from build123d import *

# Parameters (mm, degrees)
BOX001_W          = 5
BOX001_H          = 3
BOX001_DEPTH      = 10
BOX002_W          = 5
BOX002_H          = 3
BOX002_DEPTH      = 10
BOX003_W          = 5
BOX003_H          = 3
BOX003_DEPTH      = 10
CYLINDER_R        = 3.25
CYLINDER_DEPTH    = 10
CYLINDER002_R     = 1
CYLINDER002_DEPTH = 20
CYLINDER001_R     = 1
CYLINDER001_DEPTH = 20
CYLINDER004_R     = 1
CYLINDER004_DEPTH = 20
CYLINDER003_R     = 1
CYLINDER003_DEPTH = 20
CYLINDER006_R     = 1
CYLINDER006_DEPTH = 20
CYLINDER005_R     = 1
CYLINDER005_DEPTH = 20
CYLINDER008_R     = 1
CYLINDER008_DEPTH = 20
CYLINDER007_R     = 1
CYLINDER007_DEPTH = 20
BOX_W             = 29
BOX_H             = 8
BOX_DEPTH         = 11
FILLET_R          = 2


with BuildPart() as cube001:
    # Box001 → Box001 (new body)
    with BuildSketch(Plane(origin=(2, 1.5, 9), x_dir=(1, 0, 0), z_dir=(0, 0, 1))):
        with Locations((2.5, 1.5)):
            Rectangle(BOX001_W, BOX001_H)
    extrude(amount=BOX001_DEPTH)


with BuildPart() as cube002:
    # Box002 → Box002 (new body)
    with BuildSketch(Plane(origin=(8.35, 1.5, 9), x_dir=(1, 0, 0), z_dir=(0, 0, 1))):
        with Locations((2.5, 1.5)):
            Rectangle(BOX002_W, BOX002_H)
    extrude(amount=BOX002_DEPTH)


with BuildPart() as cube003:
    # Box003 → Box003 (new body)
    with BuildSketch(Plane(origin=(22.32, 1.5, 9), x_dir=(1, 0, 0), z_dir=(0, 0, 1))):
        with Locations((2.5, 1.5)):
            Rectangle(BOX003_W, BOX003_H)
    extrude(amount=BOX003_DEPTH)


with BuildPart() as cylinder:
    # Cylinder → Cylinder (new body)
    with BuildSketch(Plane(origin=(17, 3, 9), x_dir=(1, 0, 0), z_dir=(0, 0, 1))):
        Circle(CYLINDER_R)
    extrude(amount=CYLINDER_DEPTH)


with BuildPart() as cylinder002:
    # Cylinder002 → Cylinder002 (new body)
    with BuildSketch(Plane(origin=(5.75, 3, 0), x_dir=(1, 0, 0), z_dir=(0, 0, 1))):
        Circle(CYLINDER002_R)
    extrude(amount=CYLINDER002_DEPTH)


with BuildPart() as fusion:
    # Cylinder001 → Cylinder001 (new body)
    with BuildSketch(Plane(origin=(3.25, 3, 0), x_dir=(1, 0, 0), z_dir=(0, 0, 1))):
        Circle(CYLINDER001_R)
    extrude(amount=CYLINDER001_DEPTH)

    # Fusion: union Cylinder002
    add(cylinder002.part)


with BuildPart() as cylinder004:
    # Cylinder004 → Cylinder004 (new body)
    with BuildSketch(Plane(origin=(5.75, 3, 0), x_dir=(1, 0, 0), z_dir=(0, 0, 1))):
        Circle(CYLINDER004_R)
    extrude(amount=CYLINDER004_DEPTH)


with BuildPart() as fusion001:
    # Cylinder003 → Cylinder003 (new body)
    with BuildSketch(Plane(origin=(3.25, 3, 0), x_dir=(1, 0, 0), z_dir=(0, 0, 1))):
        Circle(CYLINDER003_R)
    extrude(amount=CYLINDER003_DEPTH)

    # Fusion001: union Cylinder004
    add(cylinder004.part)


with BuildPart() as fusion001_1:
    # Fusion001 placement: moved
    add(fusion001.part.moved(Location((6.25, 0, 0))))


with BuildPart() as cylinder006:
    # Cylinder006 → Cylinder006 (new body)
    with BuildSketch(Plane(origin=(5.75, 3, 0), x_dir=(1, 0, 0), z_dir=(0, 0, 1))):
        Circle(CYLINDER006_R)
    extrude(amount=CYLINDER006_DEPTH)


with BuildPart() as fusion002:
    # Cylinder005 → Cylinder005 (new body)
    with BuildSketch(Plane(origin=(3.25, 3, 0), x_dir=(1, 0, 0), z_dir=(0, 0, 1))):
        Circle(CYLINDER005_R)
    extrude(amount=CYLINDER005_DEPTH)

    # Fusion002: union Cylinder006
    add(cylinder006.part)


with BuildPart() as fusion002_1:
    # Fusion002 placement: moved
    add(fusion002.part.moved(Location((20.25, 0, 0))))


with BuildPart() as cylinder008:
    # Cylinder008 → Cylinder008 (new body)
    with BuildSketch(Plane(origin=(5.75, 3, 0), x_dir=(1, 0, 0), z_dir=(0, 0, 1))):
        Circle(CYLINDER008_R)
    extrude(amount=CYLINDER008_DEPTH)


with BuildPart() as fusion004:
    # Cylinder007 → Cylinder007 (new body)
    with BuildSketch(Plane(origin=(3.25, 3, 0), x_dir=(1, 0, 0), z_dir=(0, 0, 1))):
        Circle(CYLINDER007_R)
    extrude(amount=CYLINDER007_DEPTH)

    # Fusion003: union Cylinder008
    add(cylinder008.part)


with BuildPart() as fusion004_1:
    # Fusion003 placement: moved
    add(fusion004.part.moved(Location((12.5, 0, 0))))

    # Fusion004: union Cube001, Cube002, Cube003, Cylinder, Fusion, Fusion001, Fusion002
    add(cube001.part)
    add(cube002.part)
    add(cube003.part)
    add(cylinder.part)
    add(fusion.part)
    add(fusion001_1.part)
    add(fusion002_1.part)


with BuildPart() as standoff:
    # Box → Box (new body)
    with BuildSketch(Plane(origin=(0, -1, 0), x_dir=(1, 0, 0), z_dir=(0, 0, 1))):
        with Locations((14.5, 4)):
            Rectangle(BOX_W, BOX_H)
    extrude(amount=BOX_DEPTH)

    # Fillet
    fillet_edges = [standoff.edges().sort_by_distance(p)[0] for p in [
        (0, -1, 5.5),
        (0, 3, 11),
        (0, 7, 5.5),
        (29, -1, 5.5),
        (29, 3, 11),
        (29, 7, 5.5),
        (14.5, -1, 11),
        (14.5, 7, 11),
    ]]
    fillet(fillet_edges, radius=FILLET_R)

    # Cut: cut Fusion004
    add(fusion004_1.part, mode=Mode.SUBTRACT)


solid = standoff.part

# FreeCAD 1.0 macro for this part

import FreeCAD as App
import Part
import Sketcher
Q = App.Units.Quantity


def edges_at(feature, points):
    """Names of the edges that pass closest to the given points."""
    edges = feature.Shape.Edges
    near = lambda p: min(range(len(edges)), key=lambda i: edges[i].distToShape(Part.Vertex(*p))[0])
    return sorted({f"Edge{near(p) + 1}" for p in points})


def add_polygon(sketch, points):
    """Adds a closed chain of lines whose ends are joined by coincident constraints."""
    first, n = sketch.GeometryCount, len(points)
    for a, b in zip(points, points[1:] + points[:1]):
        sketch.addGeometry(Part.LineSegment(App.Vector(*a, 0), App.Vector(*b, 0)), False)
    for i in range(n):
        sketch.addConstraint(Sketcher.Constraint("Coincident", first + i, 2, first + (i + 1) % n, 1))

doc = App.newDocument("Part")
body = doc.addObject("PartDesign::Body", "Body")

sketch1 = doc.addObject("Sketcher::SketchObject", "Sketch")
body.addObject(sketch1)
sketch1.AttachmentSupport = (doc.XY_Plane, [""])
sketch1.MapMode = "FlatFace"
sketch1.AttachmentOffset = App.Placement(App.Vector(0, 0, 9), App.Rotation())
add_polygon(sketch1, [(2, 4.5), (2, 1.5), (7, 1.5), (7, 4.5)])
sketch1.addConstraint([
    Sketcher.Constraint("Vertical", 0),
    Sketcher.Constraint("Horizontal", 1),
    Sketcher.Constraint("Vertical", 2),
    Sketcher.Constraint("Horizontal", 3),
    Sketcher.Constraint("DistanceX", 1, 1, 1, 2, Q("5 mm")),
    Sketcher.Constraint("DistanceY", 0, 2, 0, 1, Q("3 mm")),
    Sketcher.Constraint("DistanceX", -1, 1, 0, 2, Q("2 mm")),
    Sketcher.Constraint("DistanceY", -1, 1, 0, 2, Q("1.5 mm")),
])
pad1 = doc.addObject("PartDesign::Pad", "Pad")
body.addObject(pad1)
pad1.Profile = sketch1
pad1.Length = 10
body2 = doc.addObject("PartDesign::Body", "Body001")

sketch2 = doc.addObject("Sketcher::SketchObject", "Sketch001")
body2.addObject(sketch2)
sketch2.AttachmentSupport = (doc.getObject("XY_Plane001"), [""])
sketch2.MapMode = "FlatFace"
sketch2.AttachmentOffset = App.Placement(App.Vector(0, 0, 9), App.Rotation())
add_polygon(sketch2, [(8.3, 4.5), (8.3, 1.5), (13.3, 1.5), (13.3, 4.5)])
sketch2.addConstraint([
    Sketcher.Constraint("Vertical", 0),
    Sketcher.Constraint("Horizontal", 1),
    Sketcher.Constraint("Vertical", 2),
    Sketcher.Constraint("Horizontal", 3),
    Sketcher.Constraint("DistanceX", 1, 1, 1, 2, Q("5 mm")),
    Sketcher.Constraint("DistanceY", 0, 2, 0, 1, Q("3 mm")),
    Sketcher.Constraint("DistanceY", -1, 1, 0, 2, Q("1.5 mm")),
    Sketcher.Constraint("DistanceX", -1, 1, 0, 2, Q("8.35 mm")),
])
pad2 = doc.addObject("PartDesign::Pad", "Pad001")
body2.addObject(pad2)
pad2.Profile = sketch2
pad2.Length = 10
body3 = doc.addObject("PartDesign::Body", "Body002")

sketch3 = doc.addObject("Sketcher::SketchObject", "Sketch002")
body3.addObject(sketch3)
sketch3.AttachmentSupport = (doc.getObject("XY_Plane002"), [""])
sketch3.MapMode = "FlatFace"
sketch3.AttachmentOffset = App.Placement(App.Vector(0, 0, 9), App.Rotation())
add_polygon(sketch3, [(22.3, 4.5), (22.3, 1.5), (27.3, 1.5), (27.3, 4.5)])
sketch3.addConstraint([
    Sketcher.Constraint("Vertical", 0),
    Sketcher.Constraint("Horizontal", 1),
    Sketcher.Constraint("Vertical", 2),
    Sketcher.Constraint("Horizontal", 3),
    Sketcher.Constraint("DistanceX", 1, 1, 1, 2, Q("5 mm")),
    Sketcher.Constraint("DistanceY", 0, 2, 0, 1, Q("3 mm")),
    Sketcher.Constraint("DistanceY", -1, 1, 0, 2, Q("1.5 mm")),
    Sketcher.Constraint("DistanceX", -1, 1, 0, 2, Q("22.32 mm")),
])
pad3 = doc.addObject("PartDesign::Pad", "Pad002")
body3.addObject(pad3)
pad3.Profile = sketch3
pad3.Length = 10
body4 = doc.addObject("PartDesign::Body", "Body003")

sketch4 = doc.addObject("Sketcher::SketchObject", "Sketch003")
body4.addObject(sketch4)
sketch4.AttachmentSupport = (doc.getObject("XY_Plane003"), [""])
sketch4.MapMode = "FlatFace"
sketch4.AttachmentOffset = App.Placement(App.Vector(0, 0, 9), App.Rotation())
sketch4.addGeometry(Part.Circle(App.Vector(17, 3, 0), App.Vector(0, 0, 1), 3.2), False)
sketch4.addConstraint([
    Sketcher.Constraint("Diameter", 0, Q("6.5 mm")),
    Sketcher.Constraint("DistanceX", -1, 1, 0, 3, Q("17 mm")),
    Sketcher.Constraint("DistanceY", -1, 1, 0, 3, Q("3 mm")),
])
pad4 = doc.addObject("PartDesign::Pad", "Pad003")
body4.addObject(pad4)
pad4.Profile = sketch4
pad4.Length = 10
body5 = doc.addObject("PartDesign::Body", "Body004")

sketch5 = doc.addObject("Sketcher::SketchObject", "Sketch004")
body5.addObject(sketch5)
sketch5.AttachmentSupport = (doc.getObject("XY_Plane004"), [""])
sketch5.MapMode = "FlatFace"
sketch5.addGeometry(Part.Circle(App.Vector(5.8, 3, 0), App.Vector(0, 0, 1), 1), False)
sketch5.addConstraint([
    Sketcher.Constraint("Diameter", 0, Q("2 mm")),
    Sketcher.Constraint("DistanceY", -1, 1, 0, 3, Q("3 mm")),
    Sketcher.Constraint("DistanceX", -1, 1, 0, 3, Q("5.75 mm")),
])
pad5 = doc.addObject("PartDesign::Pad", "Pad004")
body5.addObject(pad5)
pad5.Profile = sketch5
pad5.Length = 20
body6 = doc.addObject("PartDesign::Body", "Body005")
body6.AllowCompound = True

sketch6 = doc.addObject("Sketcher::SketchObject", "Sketch005")
body6.addObject(sketch6)
sketch6.AttachmentSupport = (doc.getObject("XY_Plane005"), [""])
sketch6.MapMode = "FlatFace"
sketch6.addGeometry(Part.Circle(App.Vector(3.2, 3, 0), App.Vector(0, 0, 1), 1), False)
sketch6.addConstraint([
    Sketcher.Constraint("Diameter", 0, Q("2 mm")),
    Sketcher.Constraint("DistanceY", -1, 1, 0, 3, Q("3 mm")),
    Sketcher.Constraint("DistanceX", -1, 1, 0, 3, Q("3.25 mm")),
])
pad6 = doc.addObject("PartDesign::Pad", "Pad005")
body6.addObject(pad6)
pad6.Profile = sketch6
pad6.Length = 20
doc.recompute()

boolean = doc.addObject("PartDesign::Boolean", "Boolean")
body6.addObject(boolean)
boolean.Type = "Fuse"
boolean.addObjects([body5])
body7 = doc.addObject("PartDesign::Body", "Body006")

sketch7 = doc.addObject("Sketcher::SketchObject", "Sketch006")
body7.addObject(sketch7)
sketch7.AttachmentSupport = (doc.getObject("XY_Plane006"), [""])
sketch7.MapMode = "FlatFace"
sketch7.addGeometry(Part.Circle(App.Vector(5.8, 3, 0), App.Vector(0, 0, 1), 1), False)
sketch7.addConstraint([
    Sketcher.Constraint("Diameter", 0, Q("2 mm")),
    Sketcher.Constraint("DistanceY", -1, 1, 0, 3, Q("3 mm")),
    Sketcher.Constraint("DistanceX", -1, 1, 0, 3, Q("5.75 mm")),
])
pad7 = doc.addObject("PartDesign::Pad", "Pad006")
body7.addObject(pad7)
pad7.Profile = sketch7
pad7.Length = 20
body8 = doc.addObject("PartDesign::Body", "Body007")
body8.AllowCompound = True

sketch8 = doc.addObject("Sketcher::SketchObject", "Sketch007")
body8.addObject(sketch8)
sketch8.AttachmentSupport = (doc.getObject("XY_Plane007"), [""])
sketch8.MapMode = "FlatFace"
sketch8.addGeometry(Part.Circle(App.Vector(3.2, 3, 0), App.Vector(0, 0, 1), 1), False)
sketch8.addConstraint([
    Sketcher.Constraint("Diameter", 0, Q("2 mm")),
    Sketcher.Constraint("DistanceY", -1, 1, 0, 3, Q("3 mm")),
    Sketcher.Constraint("DistanceX", -1, 1, 0, 3, Q("3.25 mm")),
])
pad8 = doc.addObject("PartDesign::Pad", "Pad007")
body8.addObject(pad8)
pad8.Profile = sketch8
pad8.Length = 20
doc.recompute()

boolean2 = doc.addObject("PartDesign::Boolean", "Boolean001")
body8.addObject(boolean2)
boolean2.Type = "Fuse"
boolean2.addObjects([body7])
body9 = doc.addObject("PartDesign::Body", "Body008")
body9.AllowCompound = True
doc.recompute()

body8.Placement = App.Placement(App.Vector(6.25, 0, 0), App.Rotation(App.Vector(0, 0, 1), 0))
boolean3 = doc.addObject("PartDesign::Boolean", "Boolean002")
body9.addObject(boolean3)
boolean3.Type = "Fuse"
boolean3.addObjects([body8])
body10 = doc.addObject("PartDesign::Body", "Body009")

sketch9 = doc.addObject("Sketcher::SketchObject", "Sketch008")
body10.addObject(sketch9)
sketch9.AttachmentSupport = (doc.getObject("XY_Plane009"), [""])
sketch9.MapMode = "FlatFace"
sketch9.addGeometry(Part.Circle(App.Vector(5.8, 3, 0), App.Vector(0, 0, 1), 1), False)
sketch9.addConstraint([
    Sketcher.Constraint("Diameter", 0, Q("2 mm")),
    Sketcher.Constraint("DistanceY", -1, 1, 0, 3, Q("3 mm")),
    Sketcher.Constraint("DistanceX", -1, 1, 0, 3, Q("5.75 mm")),
])
pad9 = doc.addObject("PartDesign::Pad", "Pad008")
body10.addObject(pad9)
pad9.Profile = sketch9
pad9.Length = 20
body11 = doc.addObject("PartDesign::Body", "Body010")
body11.AllowCompound = True

sketch10 = doc.addObject("Sketcher::SketchObject", "Sketch009")
body11.addObject(sketch10)
sketch10.AttachmentSupport = (doc.getObject("XY_Plane010"), [""])
sketch10.MapMode = "FlatFace"
sketch10.addGeometry(Part.Circle(App.Vector(3.2, 3, 0), App.Vector(0, 0, 1), 1), False)
sketch10.addConstraint([
    Sketcher.Constraint("Diameter", 0, Q("2 mm")),
    Sketcher.Constraint("DistanceY", -1, 1, 0, 3, Q("3 mm")),
    Sketcher.Constraint("DistanceX", -1, 1, 0, 3, Q("3.25 mm")),
])
pad10 = doc.addObject("PartDesign::Pad", "Pad009")
body11.addObject(pad10)
pad10.Profile = sketch10
pad10.Length = 20
doc.recompute()

boolean4 = doc.addObject("PartDesign::Boolean", "Boolean003")
body11.addObject(boolean4)
boolean4.Type = "Fuse"
boolean4.addObjects([body10])
body12 = doc.addObject("PartDesign::Body", "Body011")
body12.AllowCompound = True
doc.recompute()

body11.Placement = App.Placement(App.Vector(20.25, 0, 0), App.Rotation(App.Vector(0, 0, 1), 0))
boolean5 = doc.addObject("PartDesign::Boolean", "Boolean004")
body12.addObject(boolean5)
boolean5.Type = "Fuse"
boolean5.addObjects([body11])
body13 = doc.addObject("PartDesign::Body", "Body012")

sketch11 = doc.addObject("Sketcher::SketchObject", "Sketch010")
body13.addObject(sketch11)
sketch11.AttachmentSupport = (doc.getObject("XY_Plane012"), [""])
sketch11.MapMode = "FlatFace"
sketch11.addGeometry(Part.Circle(App.Vector(5.8, 3, 0), App.Vector(0, 0, 1), 1), False)
sketch11.addConstraint([
    Sketcher.Constraint("Diameter", 0, Q("2 mm")),
    Sketcher.Constraint("DistanceY", -1, 1, 0, 3, Q("3 mm")),
    Sketcher.Constraint("DistanceX", -1, 1, 0, 3, Q("5.75 mm")),
])
pad11 = doc.addObject("PartDesign::Pad", "Pad010")
body13.addObject(pad11)
pad11.Profile = sketch11
pad11.Length = 20
body14 = doc.addObject("PartDesign::Body", "Body013")
body14.AllowCompound = True

sketch12 = doc.addObject("Sketcher::SketchObject", "Sketch011")
body14.addObject(sketch12)
sketch12.AttachmentSupport = (doc.getObject("XY_Plane013"), [""])
sketch12.MapMode = "FlatFace"
sketch12.addGeometry(Part.Circle(App.Vector(3.2, 3, 0), App.Vector(0, 0, 1), 1), False)
sketch12.addConstraint([
    Sketcher.Constraint("Diameter", 0, Q("2 mm")),
    Sketcher.Constraint("DistanceY", -1, 1, 0, 3, Q("3 mm")),
    Sketcher.Constraint("DistanceX", -1, 1, 0, 3, Q("3.25 mm")),
])
pad12 = doc.addObject("PartDesign::Pad", "Pad011")
body14.addObject(pad12)
pad12.Profile = sketch12
pad12.Length = 20
doc.recompute()

boolean6 = doc.addObject("PartDesign::Boolean", "Boolean005")
body14.addObject(boolean6)
boolean6.Type = "Fuse"
boolean6.addObjects([body13])
body15 = doc.addObject("PartDesign::Body", "Body014")
body15.AllowCompound = True
doc.recompute()

body14.Placement = App.Placement(App.Vector(12.5, 0, 0), App.Rotation(App.Vector(0, 0, 1), 0))
boolean7 = doc.addObject("PartDesign::Boolean", "Boolean006")
body15.addObject(boolean7)
boolean7.Type = "Fuse"
boolean7.addObjects([body14])
doc.recompute()

boolean8 = doc.addObject("PartDesign::Boolean", "Boolean007")
body15.addObject(boolean8)
boolean8.Type = "Fuse"
boolean8.addObjects([body])
doc.recompute()

boolean9 = doc.addObject("PartDesign::Boolean", "Boolean008")
body15.addObject(boolean9)
boolean9.Type = "Fuse"
boolean9.addObjects([body2])
doc.recompute()

boolean10 = doc.addObject("PartDesign::Boolean", "Boolean009")
body15.addObject(boolean10)
boolean10.Type = "Fuse"
boolean10.addObjects([body3])
doc.recompute()

boolean11 = doc.addObject("PartDesign::Boolean", "Boolean010")
body15.addObject(boolean11)
boolean11.Type = "Fuse"
boolean11.addObjects([body4])
doc.recompute()

boolean12 = doc.addObject("PartDesign::Boolean", "Boolean011")
body15.addObject(boolean12)
boolean12.Type = "Fuse"
boolean12.addObjects([body6])
doc.recompute()

boolean13 = doc.addObject("PartDesign::Boolean", "Boolean012")
body15.addObject(boolean13)
boolean13.Type = "Fuse"
boolean13.addObjects([body9])
doc.recompute()

boolean14 = doc.addObject("PartDesign::Boolean", "Boolean013")
body15.addObject(boolean14)
boolean14.Type = "Fuse"
boolean14.addObjects([body12])
body16 = doc.addObject("PartDesign::Body", "Body015")

sketch13 = doc.addObject("Sketcher::SketchObject", "Sketch012")
body16.addObject(sketch13)
sketch13.AttachmentSupport = (doc.getObject("XY_Plane015"), [""])
sketch13.MapMode = "FlatFace"
add_polygon(sketch13, [(0, 7), (0, -1), (29, -1), (29, 7)])
sketch13.addConstraint([
    Sketcher.Constraint("Vertical", 0),
    Sketcher.Constraint("Horizontal", 1),
    Sketcher.Constraint("Vertical", 2),
    Sketcher.Constraint("Horizontal", 3),
    Sketcher.Constraint("PointOnObject", 0, 2, -2),
    Sketcher.Constraint("DistanceX", 1, 1, 1, 2, Q("29 mm")),
    Sketcher.Constraint("DistanceY", 0, 2, 0, 1, Q("8 mm")),
    Sketcher.Constraint("DistanceY", 0, 2, -1, 1, Q("1 mm")),
])
pad13 = doc.addObject("PartDesign::Pad", "Pad012")
body16.addObject(pad13)
pad13.Profile = sketch13
pad13.Length = 11
doc.recompute()

fillet = doc.addObject("PartDesign::Fillet", "Fillet")
body16.addObject(fillet)
fillet.Base = (pad13, edges_at(pad13, [
    (0, -1, 5.5),
    (0, 3, 11),
    (0, 7, 5.5),
    (29, -1, 5.5),
    (29, 3, 11),
    (29, 7, 5.5),
    (14.5, -1, 11),
    (14.5, 7, 11),
]))
fillet.Radius = 2
doc.recompute()

boolean15 = doc.addObject("PartDesign::Boolean", "Boolean014")
body16.addObject(boolean15)
boolean15.Type = "Cut"
boolean15.addObjects([body15])

doc.recompute()
